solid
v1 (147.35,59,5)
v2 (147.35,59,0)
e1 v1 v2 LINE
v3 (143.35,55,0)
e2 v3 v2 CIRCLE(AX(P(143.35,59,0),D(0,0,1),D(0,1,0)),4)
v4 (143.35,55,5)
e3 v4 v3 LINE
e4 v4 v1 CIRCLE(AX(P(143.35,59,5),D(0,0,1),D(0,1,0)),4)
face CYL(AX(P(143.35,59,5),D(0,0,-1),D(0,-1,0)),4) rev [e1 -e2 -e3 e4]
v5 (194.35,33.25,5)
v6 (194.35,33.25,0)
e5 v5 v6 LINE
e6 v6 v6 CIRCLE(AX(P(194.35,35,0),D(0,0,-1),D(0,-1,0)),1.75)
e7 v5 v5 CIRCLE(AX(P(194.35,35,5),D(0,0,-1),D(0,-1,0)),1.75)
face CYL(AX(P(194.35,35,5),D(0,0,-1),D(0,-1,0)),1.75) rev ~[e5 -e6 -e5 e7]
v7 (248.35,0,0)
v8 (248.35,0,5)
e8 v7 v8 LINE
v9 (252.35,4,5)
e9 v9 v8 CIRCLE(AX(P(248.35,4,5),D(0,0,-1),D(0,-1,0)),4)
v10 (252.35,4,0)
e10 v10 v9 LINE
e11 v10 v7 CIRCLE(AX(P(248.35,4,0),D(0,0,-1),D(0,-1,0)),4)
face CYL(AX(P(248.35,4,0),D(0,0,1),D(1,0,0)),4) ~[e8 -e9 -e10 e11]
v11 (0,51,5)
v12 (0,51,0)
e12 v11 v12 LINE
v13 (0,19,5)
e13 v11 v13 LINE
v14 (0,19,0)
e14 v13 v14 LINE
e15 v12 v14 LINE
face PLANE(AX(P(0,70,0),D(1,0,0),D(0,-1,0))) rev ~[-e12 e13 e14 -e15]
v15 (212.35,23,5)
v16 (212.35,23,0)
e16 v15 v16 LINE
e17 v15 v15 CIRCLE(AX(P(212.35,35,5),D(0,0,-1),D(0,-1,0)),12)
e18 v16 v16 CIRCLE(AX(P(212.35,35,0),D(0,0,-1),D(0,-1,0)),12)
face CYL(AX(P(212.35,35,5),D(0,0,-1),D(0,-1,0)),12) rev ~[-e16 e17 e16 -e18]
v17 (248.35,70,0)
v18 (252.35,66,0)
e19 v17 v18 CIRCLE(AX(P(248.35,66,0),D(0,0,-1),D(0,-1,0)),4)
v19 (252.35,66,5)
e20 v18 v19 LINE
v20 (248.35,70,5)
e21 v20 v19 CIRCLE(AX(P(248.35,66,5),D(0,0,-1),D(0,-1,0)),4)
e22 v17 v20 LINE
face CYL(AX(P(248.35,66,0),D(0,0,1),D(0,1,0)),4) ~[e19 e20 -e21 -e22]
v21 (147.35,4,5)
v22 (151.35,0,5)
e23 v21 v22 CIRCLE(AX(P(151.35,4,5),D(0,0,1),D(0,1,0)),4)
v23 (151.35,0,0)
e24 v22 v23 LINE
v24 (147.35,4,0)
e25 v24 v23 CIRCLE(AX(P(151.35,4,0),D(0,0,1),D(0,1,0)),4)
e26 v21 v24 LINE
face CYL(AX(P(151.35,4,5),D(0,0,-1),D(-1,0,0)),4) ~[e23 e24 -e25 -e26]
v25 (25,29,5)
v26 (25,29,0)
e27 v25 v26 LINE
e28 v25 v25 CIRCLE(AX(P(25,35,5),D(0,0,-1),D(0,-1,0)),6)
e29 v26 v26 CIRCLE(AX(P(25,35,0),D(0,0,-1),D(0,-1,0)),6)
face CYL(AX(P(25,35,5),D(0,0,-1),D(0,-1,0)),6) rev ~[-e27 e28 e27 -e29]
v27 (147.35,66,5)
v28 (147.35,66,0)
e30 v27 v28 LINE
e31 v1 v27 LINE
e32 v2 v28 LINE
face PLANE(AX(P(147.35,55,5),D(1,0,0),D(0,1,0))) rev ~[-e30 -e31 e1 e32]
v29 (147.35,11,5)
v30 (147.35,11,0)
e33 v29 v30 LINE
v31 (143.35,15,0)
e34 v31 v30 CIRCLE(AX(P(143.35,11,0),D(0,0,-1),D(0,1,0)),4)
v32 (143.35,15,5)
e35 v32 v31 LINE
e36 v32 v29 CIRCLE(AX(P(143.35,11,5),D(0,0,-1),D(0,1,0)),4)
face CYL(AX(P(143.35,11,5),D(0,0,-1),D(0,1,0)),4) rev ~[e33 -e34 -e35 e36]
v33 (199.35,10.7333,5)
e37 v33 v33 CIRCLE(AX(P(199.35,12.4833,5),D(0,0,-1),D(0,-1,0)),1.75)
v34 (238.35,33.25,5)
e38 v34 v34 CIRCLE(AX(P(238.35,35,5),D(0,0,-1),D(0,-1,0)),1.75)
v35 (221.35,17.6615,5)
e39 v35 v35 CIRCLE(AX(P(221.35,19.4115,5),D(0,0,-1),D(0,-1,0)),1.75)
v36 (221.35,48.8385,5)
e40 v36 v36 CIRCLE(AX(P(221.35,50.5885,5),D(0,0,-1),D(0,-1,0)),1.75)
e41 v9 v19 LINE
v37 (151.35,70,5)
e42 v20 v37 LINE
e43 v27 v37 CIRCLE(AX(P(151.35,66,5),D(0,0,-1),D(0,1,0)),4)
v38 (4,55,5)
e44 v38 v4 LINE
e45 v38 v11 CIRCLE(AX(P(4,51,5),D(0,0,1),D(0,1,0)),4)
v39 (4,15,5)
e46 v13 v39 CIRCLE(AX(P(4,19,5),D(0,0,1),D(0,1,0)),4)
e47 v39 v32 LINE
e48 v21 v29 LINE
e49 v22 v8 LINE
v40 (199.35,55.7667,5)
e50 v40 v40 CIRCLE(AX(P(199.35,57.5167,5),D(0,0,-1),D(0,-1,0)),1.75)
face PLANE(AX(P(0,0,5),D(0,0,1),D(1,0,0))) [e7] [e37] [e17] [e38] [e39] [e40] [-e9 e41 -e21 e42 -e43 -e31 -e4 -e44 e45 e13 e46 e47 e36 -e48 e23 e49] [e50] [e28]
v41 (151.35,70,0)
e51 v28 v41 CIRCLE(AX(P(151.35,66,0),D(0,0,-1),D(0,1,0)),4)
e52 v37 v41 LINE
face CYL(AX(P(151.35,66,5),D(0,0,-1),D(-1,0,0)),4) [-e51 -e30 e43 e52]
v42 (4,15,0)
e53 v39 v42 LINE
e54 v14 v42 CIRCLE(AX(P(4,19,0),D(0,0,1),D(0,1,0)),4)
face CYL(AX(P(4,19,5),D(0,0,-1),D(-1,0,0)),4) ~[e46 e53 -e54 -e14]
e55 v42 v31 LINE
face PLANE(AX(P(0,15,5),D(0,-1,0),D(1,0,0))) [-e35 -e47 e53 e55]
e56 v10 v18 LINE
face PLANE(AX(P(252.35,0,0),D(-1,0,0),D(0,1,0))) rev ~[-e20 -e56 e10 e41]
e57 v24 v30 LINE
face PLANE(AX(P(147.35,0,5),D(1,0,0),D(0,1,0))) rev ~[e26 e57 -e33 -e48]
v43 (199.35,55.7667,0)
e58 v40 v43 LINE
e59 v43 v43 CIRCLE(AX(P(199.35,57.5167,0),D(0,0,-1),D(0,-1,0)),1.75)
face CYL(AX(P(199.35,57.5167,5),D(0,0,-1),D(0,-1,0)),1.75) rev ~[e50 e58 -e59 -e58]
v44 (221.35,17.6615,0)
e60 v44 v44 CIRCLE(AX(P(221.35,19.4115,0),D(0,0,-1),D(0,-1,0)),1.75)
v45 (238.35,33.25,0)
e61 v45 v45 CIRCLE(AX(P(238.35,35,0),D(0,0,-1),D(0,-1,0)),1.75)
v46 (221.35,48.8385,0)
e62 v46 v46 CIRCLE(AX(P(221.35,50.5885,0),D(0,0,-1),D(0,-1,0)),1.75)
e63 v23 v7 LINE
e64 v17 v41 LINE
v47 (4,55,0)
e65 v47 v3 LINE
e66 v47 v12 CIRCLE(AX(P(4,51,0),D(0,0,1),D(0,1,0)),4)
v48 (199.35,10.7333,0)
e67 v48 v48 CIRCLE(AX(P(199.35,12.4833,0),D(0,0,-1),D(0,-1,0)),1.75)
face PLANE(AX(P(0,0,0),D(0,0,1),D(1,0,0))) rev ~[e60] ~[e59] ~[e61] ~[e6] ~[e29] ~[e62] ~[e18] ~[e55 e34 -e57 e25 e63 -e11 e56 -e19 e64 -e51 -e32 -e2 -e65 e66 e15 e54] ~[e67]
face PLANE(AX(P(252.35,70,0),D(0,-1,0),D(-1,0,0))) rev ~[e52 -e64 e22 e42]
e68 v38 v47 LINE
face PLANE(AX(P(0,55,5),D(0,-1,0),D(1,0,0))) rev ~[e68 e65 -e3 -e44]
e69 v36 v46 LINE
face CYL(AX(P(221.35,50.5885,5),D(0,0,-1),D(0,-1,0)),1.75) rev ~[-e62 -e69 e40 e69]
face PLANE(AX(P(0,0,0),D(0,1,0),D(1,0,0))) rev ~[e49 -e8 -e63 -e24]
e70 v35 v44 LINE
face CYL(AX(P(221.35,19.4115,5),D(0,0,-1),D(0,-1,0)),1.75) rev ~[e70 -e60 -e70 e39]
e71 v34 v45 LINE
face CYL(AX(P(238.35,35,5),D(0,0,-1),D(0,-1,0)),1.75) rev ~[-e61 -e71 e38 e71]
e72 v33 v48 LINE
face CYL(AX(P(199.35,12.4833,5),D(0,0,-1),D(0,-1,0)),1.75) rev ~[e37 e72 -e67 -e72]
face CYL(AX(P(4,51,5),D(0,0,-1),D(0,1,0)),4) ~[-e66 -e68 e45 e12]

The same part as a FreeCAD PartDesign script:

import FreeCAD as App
import Part
import Sketcher

V = App.Vector


def edges_at(feature, points):
    """Names of the edges that pass closest to the given points."""
    edges = feature.Shape.Edges
    near = lambda p: min(range(len(edges)), key=lambda i: edges[i].distToShape(Part.Vertex(*p))[0])
    return sorted({f"Edge{near(p) + 1}" for p in points})

doc = App.newDocument("Part")
params = doc.addObject("Spreadsheet::Sheet", "Params")
for row, (alias, value) in enumerate([
    ("sketch1_height", "70 mm"),
    ("sketch1_width", "252.35 mm"),
    ("pad1_length", "5 mm"),
    ("sketch2_diameter", "12 mm"),
    ("hole_diameter", "12 mm"),
    ("sketch3_diameter", "24 mm"),
    ("hole2_diameter", "24 mm"),
    ("sketch4_height", "15 mm"),
    ("sketch4_width", "147.35 mm"),
    ("pocket1_length", "10 mm"),
    ("fillet_radius", "4 mm"),
    ("sketch5_diameter", "3.5 mm"),
    ("hole3_diameter", "3.5 mm"),
    ("sketch6_diameter", "3.5 mm"),
    ("hole4_diameter", "3.5 mm"),
    ("fillet2_radius", "4 mm"),
], start=1):
    params.set(f"A{row}", alias)
    params.set(f"B{row}", "=" + value)
    params.setAlias(f"B{row}", alias)

body = doc.addObject("PartDesign::Body", "Body")

# Sketch on XY plane
sketch1 = doc.addObject("Sketcher::SketchObject", "Sketch")
body.addObject(sketch1)
sketch1.AttachmentSupport = (doc.XY_Plane, [""])
sketch1.MapMode = "FlatFace"
sketch1.addGeometry([
    Part.LineSegment(V(0, 70, 0), V(0, 0, 0)),
    Part.LineSegment(V(0, 0, 0), V(252.35, 0, 0)),
    Part.LineSegment(V(252.35, 0, 0), V(252.35, 70, 0)),
    Part.LineSegment(V(252.35, 70, 0), V(0, 70, 0)),
], False)
sketch1.addConstraint([
    Sketcher.Constraint("Coincident", 0, 2, 1, 1),
    Sketcher.Constraint("Coincident", 1, 2, 2, 1),
    Sketcher.Constraint("Coincident", 2, 2, 3, 1),
    Sketcher.Constraint("Coincident", 3, 2, 0, 1),
    Sketcher.Constraint("Vertical", 0),
    Sketcher.Constraint("Horizontal", 1),
    Sketcher.Constraint("Vertical", 2),
    Sketcher.Constraint("Horizontal", 3),
    Sketcher.Constraint("Coincident", 0, 2, -1, 1),
    Sketcher.Constraint("DistanceY", 0, 2, 0, 1, 70.0),
    Sketcher.Constraint("DistanceX", 1, 1, 1, 2, 252.35),
])
sketch1.setExpression("Constraints[9]", "Params.sketch1_height")
sketch1.setExpression("Constraints[10]", "Params.sketch1_width")
pad1 = doc.addObject("PartDesign::Pad", "Pad")
body.addObject(pad1)
pad1.Profile = sketch1
pad1.setExpression("Length", "Params.pad1_length")

# Sketch on XY plane
sketch2 = doc.addObject("Sketcher::SketchObject", "Sketch001")
body.addObject(sketch2)
sketch2.AttachmentSupport = (doc.XY_Plane, [""])
sketch2.MapMode = "FlatFace"
sketch2.AttachmentOffset = App.Placement(V(0, 0, 5), App.Rotation())
sketch2.addGeometry(Part.Circle(V(25, 35, 0), V(0, 0, 1), 6), False)
sketch2.addConstraint([
    Sketcher.Constraint("Diameter", 0, 12.0),
    Sketcher.Constraint("DistanceX", -1, 1, 0, 3, 25.0),
    Sketcher.Constraint("DistanceY", -1, 1, 0, 3, 35.0),
])
sketch2.setExpression("Constraints[0]", "Params.sketch2_diameter")
doc.recompute()
hole = doc.addObject("PartDesign::Hole", "Hole")
body.addObject(hole)
hole.Profile = sketch2
hole.ThreadType = "None"
hole.setExpression("Diameter", "Params.hole_diameter")
hole.DepthType = "ThroughAll"

# Sketch on XY plane
sketch3 = doc.addObject("Sketcher::SketchObject", "Sketch002")
body.addObject(sketch3)
sketch3.AttachmentSupport = (doc.XY_Plane, [""])
sketch3.MapMode = "FlatFace"
sketch3.AttachmentOffset = App.Placement(V(0, 0, 5), App.Rotation())
sketch3.addGeometry(Part.Circle(V(212.35, 35, 0), V(0, 0, 1), 12), False)
sketch3.addConstraint([
    Sketcher.Constraint("Diameter", 0, 24.0),
    Sketcher.Constraint("DistanceY", -1, 1, 0, 3, 35.0),
    Sketcher.Constraint("DistanceX", -1, 1, 0, 3, 212.35),
])
sketch3.setExpression("Constraints[0]", "Params.sketch3_diameter")
doc.recompute()
hole2 = doc.addObject("PartDesign::Hole", "Hole001")
body.addObject(hole2)
hole2.Profile = sketch3
hole2.ThreadType = "None"
hole2.setExpression("Diameter", "Params.hole2_diameter")
hole2.DepthType = "ThroughAll"

# Sketch on XY plane
sketch4 = doc.addObject("Sketcher::SketchObject", "Sketch003")
body.addObject(sketch4)
sketch4.AttachmentSupport = (doc.XY_Plane, [""])
sketch4.MapMode = "FlatFace"
sketch4.AttachmentOffset = App.Placement(V(0, 0, 5), App.Rotation())
sketch4.addGeometry([
    Part.LineSegment(V(0, 0, 0), V(147.35, 0, 0)),  # 0
    Part.LineSegment(V(147.35, 0, 0), V(147.35, 15, 0)),  # 1
    Part.LineSegment(V(147.35, 15, 0), V(0, 15, 0)),  # 2
    Part.LineSegment(V(0, 15, 0), V(0, 0, 0)),  # 3
    Part.LineSegment(V(147.35, 55, 0), V(147.35, 70, 0)),  # 4
    Part.LineSegment(V(147.35, 70, 0), V(0, 70, 0)),  # 5
    Part.LineSegment(V(0, 70, 0), V(0, 55, 0)),  # 6
    Part.LineSegment(V(0, 55, 0), V(147.35, 55, 0)),  # 7
], False)
sketch4.addConstraint([
    Sketcher.Constraint("Coincident", 0, 2, 1, 1),
    Sketcher.Constraint("Coincident", 1, 2, 2, 1),
    Sketcher.Constraint("Coincident", 2, 2, 3, 1),
    Sketcher.Constraint("Coincident", 3, 2, 0, 1),
    Sketcher.Constraint("Coincident", 4, 2, 5, 1),
    Sketcher.Constraint("Coincident", 5, 2, 6, 1),
    Sketcher.Constraint("Coincident", 6, 2, 7, 1),
    Sketcher.Constraint("Coincident", 7, 2, 4, 1),
    Sketcher.Constraint("Horizontal", 0),
    Sketcher.Constraint("Vertical", 1),
    Sketcher.Constraint("Horizontal", 2),
    Sketcher.Constraint("Vertical", 3),
    Sketcher.Constraint("Vertical", 4),
    Sketcher.Constraint("Horizontal", 5),
    Sketcher.Constraint("Vertical", 6),
    Sketcher.Constraint("Horizontal", 7),
    Sketcher.Constraint("Coincident", 3, 2, -1, 1),
    Sketcher.Constraint("PointOnObject", 5, 2, -2),
    Sketcher.Constraint("Vertical", 1, 2, 4, 2),
    Sketcher.Constraint("Equal", 3, 4),
    Sketcher.Constraint("DistanceY", 1, 1, 1, 2, 15.0),
    Sketcher.Constraint("DistanceY", -1, 1, 4, 2, 70.0),
    Sketcher.Constraint("DistanceX", 0, 1, 0, 2, 147.35),
])
sketch4.setExpression("Constraints[20]", "Params.sketch4_height")
sketch4.setExpression("Constraints[22]", "Params.sketch4_width")
pocket1 = doc.addObject("PartDesign::Pocket", "Pocket")
body.addObject(pocket1)
pocket1.Profile = sketch4
pocket1.setExpression("Length", "Params.pocket1_length")
doc.recompute()

fillet = doc.addObject("PartDesign::Fillet", "Fillet")
body.addObject(fillet)
fillet.Base = (pocket1, edges_at(pocket1, [(147.35, 15, 2.5), (147.35, 55, 2.5)]))
fillet.setExpression("Radius", "Params.fillet_radius")

# Sketch on XY plane
sketch5 = doc.addObject("Sketcher::SketchObject", "Sketch004")
body.addObject(sketch5)
sketch5.AttachmentSupport = (doc.XY_Plane, [""])
sketch5.MapMode = "FlatFace"
sketch5.AttachmentOffset = App.Placement(V(0, 0, 5), App.Rotation())
sketch5.addGeometry([
    Part.Circle(V(238.35, 35, 0), V(0, 0, 1), 1.75),
    Part.Circle(V(199.35, 57.5167, 0), V(0, 0, 1), 1.75),
    Part.Circle(V(199.35, 12.4833, 0), V(0, 0, 1), 1.75),
], False)
sketch5.addConstraint([
    Sketcher.Constraint("Equal", 0, 1),
    Sketcher.Constraint("Equal", 1, 2),
    Sketcher.Constraint("Vertical", 1, 3, 2, 3),
    Sketcher.Constraint("Diameter", 0, 3.5),
    Sketcher.Constraint("DistanceY", -1, 1, 0, 3, 35.0),
    Sketcher.Constraint("DistanceX", 1, 3, 0, 3, 39.0),
    Sketcher.Constraint("DistanceX", -1, 1, 0, 3, 238.35),
    Sketcher.Constraint("DistanceY", -1, 1, 1, 3, 57.5167),
    Sketcher.Constraint("DistanceY", -1, 1, 2, 3, 12.4833),
])
sketch5.setExpression("Constraints[3]", "Params.sketch5_diameter")
doc.recompute()
hole3 = doc.addObject("PartDesign::Hole", "Hole002")
body.addObject(hole3)
hole3.Profile = sketch5
hole3.ThreadType = "None"
hole3.setExpression("Diameter", "Params.hole3_diameter")
hole3.DepthType = "ThroughAll"

# Sketch on XY plane
sketch6 = doc.addObject("Sketcher::SketchObject", "Sketch005")
body.addObject(sketch6)
sketch6.AttachmentSupport = (doc.XY_Plane, [""])
sketch6.MapMode = "FlatFace"
sketch6.AttachmentOffset = App.Placement(V(0, 0, 5), App.Rotation())
sketch6.addGeometry([
    Part.Circle(V(194.35, 35, 0), V(0, 0, 1), 1.75),
    Part.Circle(V(221.35, 19.4115, 0), V(0, 0, 1), 1.75),
    Part.Circle(V(221.35, 50.5885, 0), V(0, 0, 1), 1.75),
], False)
sketch6.addConstraint([
    Sketcher.Constraint("Equal", 0, 1),
    Sketcher.Constraint("Equal", 1, 2),
    Sketcher.Constraint("Vertical", 1, 3, 2, 3),
    Sketcher.Constraint("Diameter", 0, 3.5),
    Sketcher.Constraint("DistanceY", -1, 1, 0, 3, 35.0),
    Sketcher.Constraint("DistanceX", 0, 3, 1, 3, 27.0),
    Sketcher.Constraint("DistanceX", -1, 1, 0, 3, 194.35),
    Sketcher.Constraint("DistanceY", 1, 3, 2, 3, 31.177),
    Sketcher.Constraint("DistanceY", -1, 1, 1, 3, 19.4115),
])
sketch6.setExpression("Constraints[3]", "Params.sketch6_diameter")
doc.recompute()
hole4 = doc.addObject("PartDesign::Hole", "Hole003")
body.addObject(hole4)
hole4.Profile = sketch6
hole4.ThreadType = "None"
hole4.setExpression("Diameter", "Params.hole4_diameter")
hole4.DepthType = "ThroughAll"
doc.recompute()

fillet2 = doc.addObject("PartDesign::Fillet", "Fillet001")
body.addObject(fillet2)
fillet2.Base = (hole4, edges_at(hole4, [
    (0, 55, 2.5),
    (0, 15, 2.5),
    (147.35, 0, 2.5),
    (147.35, 70, 2.5),
    (252.35, 70, 2.5),
    (252.35, 0, 2.5),
]))
fillet2.setExpression("Radius", "Params.fillet2_radius")

doc.recompute()
